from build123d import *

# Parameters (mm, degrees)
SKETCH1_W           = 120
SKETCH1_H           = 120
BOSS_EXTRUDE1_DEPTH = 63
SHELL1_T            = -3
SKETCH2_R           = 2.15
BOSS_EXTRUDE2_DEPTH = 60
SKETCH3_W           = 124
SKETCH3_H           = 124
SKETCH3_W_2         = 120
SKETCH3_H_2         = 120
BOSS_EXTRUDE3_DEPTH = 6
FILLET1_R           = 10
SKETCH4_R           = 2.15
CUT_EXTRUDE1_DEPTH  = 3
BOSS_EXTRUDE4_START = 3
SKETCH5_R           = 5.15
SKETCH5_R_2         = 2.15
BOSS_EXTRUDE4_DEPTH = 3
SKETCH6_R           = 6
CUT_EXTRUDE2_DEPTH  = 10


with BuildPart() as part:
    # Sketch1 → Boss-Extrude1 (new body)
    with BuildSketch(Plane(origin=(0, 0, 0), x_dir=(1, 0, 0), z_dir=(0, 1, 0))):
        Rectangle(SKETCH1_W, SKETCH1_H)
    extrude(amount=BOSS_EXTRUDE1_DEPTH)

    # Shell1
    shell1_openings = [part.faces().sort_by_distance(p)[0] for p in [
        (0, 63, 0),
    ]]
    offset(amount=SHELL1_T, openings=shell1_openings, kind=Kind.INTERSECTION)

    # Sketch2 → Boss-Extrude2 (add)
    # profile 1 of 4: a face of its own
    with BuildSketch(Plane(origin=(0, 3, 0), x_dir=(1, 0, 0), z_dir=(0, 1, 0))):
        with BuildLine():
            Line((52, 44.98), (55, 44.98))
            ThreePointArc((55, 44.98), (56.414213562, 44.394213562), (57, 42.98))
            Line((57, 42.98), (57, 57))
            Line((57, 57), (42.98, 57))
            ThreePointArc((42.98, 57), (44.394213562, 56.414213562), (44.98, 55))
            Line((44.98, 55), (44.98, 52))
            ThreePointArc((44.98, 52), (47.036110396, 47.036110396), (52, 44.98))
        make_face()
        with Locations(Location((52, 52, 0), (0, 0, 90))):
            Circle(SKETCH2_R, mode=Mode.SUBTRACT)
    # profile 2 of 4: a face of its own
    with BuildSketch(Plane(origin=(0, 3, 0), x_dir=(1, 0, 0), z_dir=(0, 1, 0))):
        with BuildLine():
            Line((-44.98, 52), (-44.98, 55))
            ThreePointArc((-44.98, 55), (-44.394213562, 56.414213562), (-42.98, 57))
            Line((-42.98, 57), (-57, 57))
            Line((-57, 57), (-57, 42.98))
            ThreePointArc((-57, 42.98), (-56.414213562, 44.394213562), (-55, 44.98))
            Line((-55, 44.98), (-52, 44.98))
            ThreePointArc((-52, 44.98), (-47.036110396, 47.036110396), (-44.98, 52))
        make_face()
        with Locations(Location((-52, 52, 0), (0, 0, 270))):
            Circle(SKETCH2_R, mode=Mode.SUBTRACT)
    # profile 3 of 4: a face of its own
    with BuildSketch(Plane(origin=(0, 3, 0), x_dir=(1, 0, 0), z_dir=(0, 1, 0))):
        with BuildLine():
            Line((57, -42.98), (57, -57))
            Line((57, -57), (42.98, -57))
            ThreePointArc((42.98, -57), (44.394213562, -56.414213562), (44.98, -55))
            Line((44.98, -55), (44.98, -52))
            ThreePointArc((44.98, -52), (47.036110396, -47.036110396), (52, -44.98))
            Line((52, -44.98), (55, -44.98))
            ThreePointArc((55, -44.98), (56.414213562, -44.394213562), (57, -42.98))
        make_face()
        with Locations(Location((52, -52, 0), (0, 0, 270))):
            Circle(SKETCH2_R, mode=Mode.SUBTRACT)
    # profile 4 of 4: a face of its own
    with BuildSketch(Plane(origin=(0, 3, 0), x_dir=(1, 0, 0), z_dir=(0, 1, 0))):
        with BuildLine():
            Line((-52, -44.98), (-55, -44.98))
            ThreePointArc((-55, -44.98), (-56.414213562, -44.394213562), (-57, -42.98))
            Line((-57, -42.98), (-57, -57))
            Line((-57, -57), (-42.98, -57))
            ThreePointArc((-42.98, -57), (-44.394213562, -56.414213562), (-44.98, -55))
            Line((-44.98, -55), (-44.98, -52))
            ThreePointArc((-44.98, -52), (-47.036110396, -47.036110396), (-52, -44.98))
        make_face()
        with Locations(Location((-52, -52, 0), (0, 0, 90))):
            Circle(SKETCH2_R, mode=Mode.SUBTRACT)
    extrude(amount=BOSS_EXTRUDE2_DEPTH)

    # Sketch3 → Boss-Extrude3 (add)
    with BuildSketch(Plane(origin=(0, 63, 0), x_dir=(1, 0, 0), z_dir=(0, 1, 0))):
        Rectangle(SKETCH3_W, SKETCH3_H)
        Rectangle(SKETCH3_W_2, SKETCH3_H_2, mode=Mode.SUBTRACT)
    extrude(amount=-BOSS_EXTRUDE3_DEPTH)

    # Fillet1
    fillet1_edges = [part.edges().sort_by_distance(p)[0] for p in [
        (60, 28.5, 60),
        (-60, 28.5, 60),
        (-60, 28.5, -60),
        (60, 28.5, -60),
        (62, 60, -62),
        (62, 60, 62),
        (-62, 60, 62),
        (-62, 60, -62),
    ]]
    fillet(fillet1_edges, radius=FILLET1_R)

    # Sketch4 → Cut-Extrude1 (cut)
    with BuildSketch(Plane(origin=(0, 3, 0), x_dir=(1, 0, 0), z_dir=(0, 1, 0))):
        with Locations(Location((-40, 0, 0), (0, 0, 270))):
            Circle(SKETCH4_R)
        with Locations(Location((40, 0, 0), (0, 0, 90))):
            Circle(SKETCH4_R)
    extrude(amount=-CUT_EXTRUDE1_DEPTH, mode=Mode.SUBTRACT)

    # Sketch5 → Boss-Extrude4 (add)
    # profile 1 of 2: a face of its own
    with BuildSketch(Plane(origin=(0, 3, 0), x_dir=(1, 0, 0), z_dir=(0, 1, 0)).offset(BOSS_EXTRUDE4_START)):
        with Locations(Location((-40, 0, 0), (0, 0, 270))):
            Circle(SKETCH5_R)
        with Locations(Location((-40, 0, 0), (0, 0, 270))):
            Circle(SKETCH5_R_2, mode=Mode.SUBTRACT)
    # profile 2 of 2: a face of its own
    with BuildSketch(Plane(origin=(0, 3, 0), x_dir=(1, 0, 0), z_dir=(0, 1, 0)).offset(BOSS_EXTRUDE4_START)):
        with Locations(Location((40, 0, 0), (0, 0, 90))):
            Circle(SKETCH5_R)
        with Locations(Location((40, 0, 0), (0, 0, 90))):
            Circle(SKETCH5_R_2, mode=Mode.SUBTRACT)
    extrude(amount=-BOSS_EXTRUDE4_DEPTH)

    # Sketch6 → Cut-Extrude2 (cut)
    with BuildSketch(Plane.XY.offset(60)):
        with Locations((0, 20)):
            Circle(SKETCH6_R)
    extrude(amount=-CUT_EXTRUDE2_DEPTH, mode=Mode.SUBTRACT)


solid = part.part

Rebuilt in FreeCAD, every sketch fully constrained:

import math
import FreeCAD as App
import Part
import Sketcher
from FreeCAD import Vector
Q = App.Units.Quantity


def edges_at(feature, points):
    """Names of the edges that pass closest to the given points."""
    edges = feature.Shape.Edges
    near = lambda p: min(range(len(edges)), key=lambda i: edges[i].distToShape(Part.Vertex(*p))[0])
    return sorted({f"Edge{near(p) + 1}" for p in points})


def faces_at(feature, points):
    """Names of the faces that lie closest to the given points."""
    faces = feature.Shape.Faces
    near = lambda p: min(range(len(faces)), key=lambda i: faces[i].distToShape(Part.Vertex(*p))[0])
    return sorted({f"Face{near(p) + 1}" for p in points})


def add_polygon(sketch, points):
    """Adds a closed chain of lines whose ends are joined by coincident constraints."""
    first, n = sketch.GeometryCount, len(points)
    for a, b in zip(points, points[1:] + points[:1]):
        sketch.addGeometry(Part.LineSegment(App.Vector(*a, 0), App.Vector(*b, 0)), False)
    for i in range(n):
        sketch.addConstraint(Sketcher.Constraint("Coincident", first + i, 2, first + (i + 1) % n, 1))

doc = App.newDocument("Part")
body = doc.addObject("PartDesign::Body", "Body")

sketch1 = doc.addObject("Sketcher::SketchObject", "Sketch")
body.addObject(sketch1)
sketch1.AttachmentSupport = (doc.XZ_Plane, [""])
sketch1.MapMode = "FlatFace"
add_polygon(sketch1, [(-60, -60), (-60, 60), (60, 60), (60, -60)])
sketch1.addConstraint(Sketcher.Constraint("Vertical", 0))
sketch1.addConstraint(Sketcher.Constraint("Horizontal", 1))
sketch1.addConstraint(Sketcher.Constraint("Vertical", 2))
sketch1.addConstraint(Sketcher.Constraint("Horizontal", 3))
sketch1.addConstraint(Sketcher.Constraint("Symmetric", 0, 2, 2, 2, -1, 1))
sketch1.addConstraint(Sketcher.Constraint("Equal", 3, 0))
sketch1.addConstraint(Sketcher.Constraint("DistanceX", 1, 1, 1, 2, Q("120 mm")))
pad1 = doc.addObject("PartDesign::Pad", "Pad")
body.addObject(pad1)
pad1.Profile = sketch1
pad1.Length = 63
pad1.Reversed = True
doc.recompute()

thickness = doc.addObject("PartDesign::Thickness", "Thickness")
body.addObject(thickness)
thickness.Base = (pad1, faces_at(pad1, [(0, 63, 0)]))
thickness.Value = 3
thickness.Reversed = True
thickness.Join = "Intersection"

sketch2 = doc.addObject("Sketcher::SketchObject", "Sketch001")
body.addObject(sketch2)
sketch2.AttachmentSupport = (doc.XZ_Plane, [""])
sketch2.MapMode = "FlatFace"
sketch2.AttachmentOffset = App.Placement(Vector(0, 0, -3), App.Rotation())
sketch2.addGeometry(Part.LineSegment(Vector(52, -45, 0), Vector(55, -45, 0)), False)
sketch2.addGeometry(Part.ArcOfCircle(Part.Circle(Vector(55, -43, 0), Vector(0, 0, 1), 2), math.radians(-90), math.radians(0)), False)
sketch2.addGeometry(Part.LineSegment(Vector(57, -43, 0), Vector(57, -57, 0)), False)
sketch2.addGeometry(Part.LineSegment(Vector(57, -57, 0), Vector(43, -57, 0)), False)
sketch2.addGeometry(Part.ArcOfCircle(Part.Circle(Vector(43, -55, 0), Vector(0, 0, 1), 2), math.radians(-90), math.radians(0)), False)
sketch2.addGeometry(Part.LineSegment(Vector(45, -55, 0), Vector(45, -52, 0)), False)
sketch2.addGeometry(Part.ArcOfCircle(Part.Circle(Vector(52, -52, 0), Vector(0, 0, 1), 7), math.radians(90), math.radians(180)), False)
sketch2.addGeometry(Part.Circle(Vector(52, -52, 0), Vector(0, 0, 1), 2.1), False)
sketch2.addGeometry(Part.LineSegment(Vector(-45, -52, 0), Vector(-45, -55, 0)), False)
sketch2.addGeometry(Part.ArcOfCircle(Part.Circle(Vector(-43, -55, 0), Vector(0, 0, 1), 2), math.radians(-180), math.radians(-90)), False)
sketch2.addGeometry(Part.LineSegment(Vector(-43, -57, 0), Vector(-57, -57, 0)), False)
sketch2.addGeometry(Part.LineSegment(Vector(-57, -57, 0), Vector(-57, -43, 0)), False)
sketch2.addGeometry(Part.ArcOfCircle(Part.Circle(Vector(-55, -43, 0), Vector(0, 0, 1), 2), math.radians(-180), math.radians(-90)), False)
sketch2.addGeometry(Part.LineSegment(Vector(-55, -45, 0), Vector(-52, -45, 0)), False)
sketch2.addGeometry(Part.ArcOfCircle(Part.Circle(Vector(-52, -52, 0), Vector(0, 0, 1), 7), math.radians(0), math.radians(90)), False)
sketch2.addGeometry(Part.Circle(Vector(-52, -52, 0), Vector(0, 0, 1), 2.1), False)
sketch2.addGeometry(Part.LineSegment(Vector(57, 57, 0), Vector(57, 43, 0)), False)
sketch2.addGeometry(Part.ArcOfCircle(Part.Circle(Vector(55, 43, 0), Vector(0, 0, 1), 2), math.radians(0), math.radians(90)), False)
sketch2.addGeometry(Part.LineSegment(Vector(55, 45, 0), Vector(52, 45, 0)), False)
sketch2.addGeometry(Part.ArcOfCircle(Part.Circle(Vector(52, 52, 0), Vector(0, 0, 1), 7), math.radians(180), math.radians(270)), False)
sketch2.addGeometry(Part.LineSegment(Vector(45, 52, 0), Vector(45, 55, 0)), False)
sketch2.addGeometry(Part.ArcOfCircle(Part.Circle(Vector(43, 55, 0), Vector(0, 0, 1), 2), math.radians(0), math.radians(90)), False)
sketch2.addGeometry(Part.LineSegment(Vector(43, 57, 0), Vector(57, 57, 0)), False)
sketch2.addGeometry(Part.Circle(Vector(52, 52, 0), Vector(0, 0, 1), 2.1), False)
sketch2.addGeometry(Part.LineSegment(Vector(-52, 45, 0), Vector(-55, 45, 0)), False)
sketch2.addGeometry(Part.ArcOfCircle(Part.Circle(Vector(-55, 43, 0), Vector(0, 0, 1), 2), math.radians(90), math.radians(180)), False)
sketch2.addGeometry(Part.LineSegment(Vector(-57, 43, 0), Vector(-57, 57, 0)), False)
sketch2.addGeometry(Part.LineSegment(Vector(-57, 57, 0), Vector(-43, 57, 0)), False)
sketch2.addGeometry(Part.ArcOfCircle(Part.Circle(Vector(-43, 55, 0), Vector(0, 0, 1), 2), math.radians(90), math.radians(180)), False)
sketch2.addGeometry(Part.LineSegment(Vector(-45, 55, 0), Vector(-45, 52, 0)), False)
sketch2.addGeometry(Part.ArcOfCircle(Part.Circle(Vector(-52, 52, 0), Vector(0, 0, 1), 7), math.radians(-90), math.radians(0)), False)
sketch2.addGeometry(Part.Circle(Vector(-52, 52, 0), Vector(0, 0, 1), 2.1), False)
sketch2.addConstraint(Sketcher.Constraint("Tangent", 0, 2, 1, 1))
sketch2.addConstraint(Sketcher.Constraint("Tangent", 1, 2, 2, 1))
sketch2.addConstraint(Sketcher.Constraint("Coincident", 2, 2, 3, 1))
sketch2.addConstraint(Sketcher.Constraint("Tangent", 3, 2, 4, 1))
sketch2.addConstraint(Sketcher.Constraint("Tangent", 4, 2, 5, 1))
sketch2.addConstraint(Sketcher.Constraint("Tangent", 5, 2, 6, 2))
sketch2.addConstraint(Sketcher.Constraint("Tangent", 6, 1, 0, 1))
sketch2.addConstraint(Sketcher.Constraint("Tangent", 8, 2, 9, 1))
sketch2.addConstraint(Sketcher.Constraint("Tangent", 9, 2, 10, 1))
sketch2.addConstraint(Sketcher.Constraint("Coincident", 10, 2, 11, 1))
sketch2.addConstraint(Sketcher.Constraint("Tangent", 11, 2, 12, 1))
sketch2.addConstraint(Sketcher.Constraint("Tangent", 12, 2, 13, 1))
sketch2.addConstraint(Sketcher.Constraint("Tangent", 13, 2, 14, 2))
sketch2.addConstraint(Sketcher.Constraint("Tangent", 14, 1, 8, 1))
sketch2.addConstraint(Sketcher.Constraint("Tangent", 16, 2, 17, 1))
sketch2.addConstraint(Sketcher.Constraint("Tangent", 17, 2, 18, 1))
sketch2.addConstraint(Sketcher.Constraint("Tangent", 18, 2, 19, 2))
sketch2.addConstraint(Sketcher.Constraint("Tangent", 19, 1, 20, 1))
sketch2.addConstraint(Sketcher.Constraint("Tangent", 20, 2, 21, 1))
sketch2.addConstraint(Sketcher.Constraint("Tangent", 21, 2, 22, 1))
sketch2.addConstraint(Sketcher.Constraint("Coincident", 22, 2, 16, 1))
sketch2.addConstraint(Sketcher.Constraint("Tangent", 24, 2, 25, 1))
sketch2.addConstraint(Sketcher.Constraint("Tangent", 25, 2, 26, 1))
sketch2.addConstraint(Sketcher.Constraint("Coincident", 26, 2, 27, 1))
sketch2.addConstraint(Sketcher.Constraint("Tangent", 27, 2, 28, 1))
sketch2.addConstraint(Sketcher.Constraint("Tangent", 28, 2, 29, 1))
sketch2.addConstraint(Sketcher.Constraint("Tangent", 29, 2, 30, 2))
sketch2.addConstraint(Sketcher.Constraint("Tangent", 30, 1, 24, 1))
sketch2.addConstraint(Sketcher.Constraint("Horizontal", 0))
sketch2.addConstraint(Sketcher.Constraint("Vertical", 2))
sketch2.addConstraint(Sketcher.Constraint("Horizontal", 3))
sketch2.addConstraint(Sketcher.Constraint("Vertical", 5))
sketch2.addConstraint(Sketcher.Constraint("Vertical", 8))
sketch2.addConstraint(Sketcher.Constraint("Horizontal", 10))
sketch2.addConstraint(Sketcher.Constraint("Vertical", 11))
sketch2.addConstraint(Sketcher.Constraint("Horizontal", 13))
sketch2.addConstraint(Sketcher.Constraint("Vertical", 16))
sketch2.addConstraint(Sketcher.Constraint("Horizontal", 18))
sketch2.addConstraint(Sketcher.Constraint("Vertical", 20))
sketch2.addConstraint(Sketcher.Constraint("Horizontal", 22))
sketch2.addConstraint(Sketcher.Constraint("Horizontal", 24))
sketch2.addConstraint(Sketcher.Constraint("Vertical", 26))
sketch2.addConstraint(Sketcher.Constraint("Horizontal", 27))
sketch2.addConstraint(Sketcher.Constraint("Vertical", 29))
sketch2.addConstraint(Sketcher.Constraint("Coincident", 7, 3, 6, 3))
sketch2.addConstraint(Sketcher.Constraint("Coincident", 15, 3, 14, 3))
sketch2.addConstraint(Sketcher.Constraint("Coincident", 23, 3, 19, 3))
sketch2.addConstraint(Sketcher.Constraint("Coincident", 31, 3, 30, 3))
sketch2.addConstraint(Sketcher.Constraint("Equal", 1, 4))
sketch2.addConstraint(Sketcher.Constraint("Equal", 4, 9))
sketch2.addConstraint(Sketcher.Constraint("Equal", 9, 12))
sketch2.addConstraint(Sketcher.Constraint("Equal", 6, 14))
sketch2.addConstraint(Sketcher.Constraint("Equal", 7, 15))
sketch2.addConstraint(Sketcher.Constraint("Equal", 12, 17))
sketch2.addConstraint(Sketcher.Constraint("Equal", 14, 19))
sketch2.addConstraint(Sketcher.Constraint("Equal", 17, 21))
sketch2.addConstraint(Sketcher.Constraint("Equal", 15, 23))
sketch2.addConstraint(Sketcher.Constraint("Equal", 21, 25))
sketch2.addConstraint(Sketcher.Constraint("Equal", 25, 28))
sketch2.addConstraint(Sketcher.Constraint("Equal", 19, 30))
sketch2.addConstraint(Sketcher.Constraint("Equal", 23, 31))
sketch2.addConstraint(Sketcher.Constraint("Symmetric", 12, 3, 17, 3, -1, 1))
sketch2.addConstraint(Sketcher.Constraint("Symmetric", 9, 3, 21, 3, -1, 1))
sketch2.addConstraint(Sketcher.Constraint("Symmetric", 1, 3, 25, 3, -1, 1))
sketch2.addConstraint(Sketcher.Constraint("Symmetric", 4, 3, 28, 3, -1, 1))
sketch2.addConstraint(Sketcher.Constraint("Symmetric", 4, 3, 9, 3, -2))
sketch2.addConstraint(Sketcher.Constraint("Symmetric", 1, 3, 12, 3, -2))
sketch2.addConstraint(Sketcher.Constraint("Equal", 27, 2))
sketch2.addConstraint(Sketcher.Constraint("Radius", 1, Q("2 mm")))
sketch2.addConstraint(Sketcher.Constraint("Diameter", 7, Q("4.3 mm")))
sketch2.addConstraint(Sketcher.Constraint("DistanceX", 0, 1, 0, 2, Q("3 mm")))
sketch2.addConstraint(Sketcher.Constraint("Radius", 6, Q("7.02 mm")))
sketch2.addConstraint(Sketcher.Constraint("DistanceX", -1, 1, 1, 3, Q("55 mm")))
sketch2.addConstraint(Sketcher.Constraint("DistanceY", 4, 3, -1, 1, Q("55 mm")))
pad2 = doc.addObject("PartDesign::Pad", "Pad001")
body.addObject(pad2)
pad2.Profile = sketch2
pad2.Length = 60
pad2.Reversed = True

sketch3 = doc.addObject("Sketcher::SketchObject", "Sketch002")
body.addObject(sketch3)
sketch3.AttachmentSupport = (doc.XZ_Plane, [""])
sketch3.MapMode = "FlatFace"
sketch3.AttachmentOffset = App.Placement(Vector(0, 0, -63), App.Rotation())
add_polygon(sketch3, [(-62, -62), (-62, 62), (62, 62), (62, -62)])
add_polygon(sketch3, [(60, 60), (-60, 60), (-60, -60), (60, -60)])
sketch3.addConstraint(Sketcher.Constraint("Vertical", 0))
sketch3.addConstraint(Sketcher.Constraint("Horizontal", 1))
sketch3.addConstraint(Sketcher.Constraint("Vertical", 2))
sketch3.addConstraint(Sketcher.Constraint("Horizontal", 3))
sketch3.addConstraint(Sketcher.Constraint("Horizontal", 4))
sketch3.addConstraint(Sketcher.Constraint("Vertical", 5))
sketch3.addConstraint(Sketcher.Constraint("Horizontal", 6))
sketch3.addConstraint(Sketcher.Constraint("Vertical", 7))
sketch3.addConstraint(Sketcher.Constraint("Symmetric", 0, 2, 2, 2, -1, 1))
sketch3.addConstraint(Sketcher.Constraint("Symmetric", 4, 2, 6, 2, -1, 1))
sketch3.addConstraint(Sketcher.Constraint("Equal", 3, 0))
sketch3.addConstraint(Sketcher.Constraint("Equal", 6, 5))
sketch3.addConstraint(Sketcher.Constraint("DistanceX", 1, 1, 1, 2, Q("124 mm")))
sketch3.addConstraint(Sketcher.Constraint("DistanceX", 4, 2, 4, 1, Q("120 mm")))
pad3 = doc.addObject("PartDesign::Pad", "Pad002")
body.addObject(pad3)
pad3.Profile = sketch3
pad3.Length = 6
doc.recompute()

fillet = doc.addObject("PartDesign::Fillet", "Fillet")
body.addObject(fillet)
fillet.Base = (pad3, edges_at(pad3, [
    (60, 28.5, 60),
    (-60, 28.5, 60),
    (-60, 28.5, -60),
    (60, 28.5, -60),
    (62, 60, -62),
    (62, 60, 62),
    (-62, 60, 62),
    (-62, 60, -62),
]))
fillet.Radius = 10

sketch4 = doc.addObject("Sketcher::SketchObject", "Sketch003")
body.addObject(sketch4)
sketch4.AttachmentSupport = (doc.XZ_Plane, [""])
sketch4.MapMode = "FlatFace"
sketch4.AttachmentOffset = App.Placement(Vector(0, 0, -3), App.Rotation())
sketch4.addGeometry(Part.Circle(Vector(-40, 0, 0), Vector(0, 0, 1), 2.1), False)
sketch4.addGeometry(Part.Circle(Vector(40, 0, 0), Vector(0, 0, 1), 2.1), False)
sketch4.addConstraint(Sketcher.Constraint("Equal", 0, 1))
sketch4.addConstraint(Sketcher.Constraint("Symmetric", 0, 3, 1, 3, -1, 1))
sketch4.addConstraint(Sketcher.Constraint("PointOnObject", 0, 3, -1))
sketch4.addConstraint(Sketcher.Constraint("Diameter", 0, Q("4.3 mm")))
sketch4.addConstraint(Sketcher.Constraint("DistanceX", 0, 3, -1, 1, Q("40 mm")))
pocket1 = doc.addObject("PartDesign::Pocket", "Pocket")
body.addObject(pocket1)
pocket1.Profile = sketch4
pocket1.Length = 3
pocket1.Reversed = True

sketch5 = doc.addObject("Sketcher::SketchObject", "Sketch004")
body.addObject(sketch5)
sketch5.AttachmentSupport = (doc.XZ_Plane, [""])
sketch5.MapMode = "FlatFace"
sketch5.AttachmentOffset = App.Placement(Vector(0, 0, -6), App.Rotation())
sketch5.addGeometry(Part.Circle(Vector(-40, 0, 0), Vector(0, 0, 1), 5.2), False)
sketch5.addGeometry(Part.Circle(Vector(-40, 0, 0), Vector(0, 0, 1), 2.1), False)
sketch5.addGeometry(Part.Circle(Vector(40, 0, 0), Vector(0, 0, 1), 5.2), False)
sketch5.addGeometry(Part.Circle(Vector(40, 0, 0), Vector(0, 0, 1), 2.1), False)
sketch5.addConstraint(Sketcher.Constraint("Coincident", 1, 3, 0, 3))
sketch5.addConstraint(Sketcher.Constraint("Coincident", 3, 3, 2, 3))
sketch5.addConstraint(Sketcher.Constraint("Equal", 0, 2))
sketch5.addConstraint(Sketcher.Constraint("Equal", 1, 3))
sketch5.addConstraint(Sketcher.Constraint("Symmetric", 0, 3, 2, 3, -1, 1))
sketch5.addConstraint(Sketcher.Constraint("PointOnObject", 0, 3, -1))
sketch5.addConstraint(Sketcher.Constraint("Diameter", 0, Q("10.3 mm")))
sketch5.addConstraint(Sketcher.Constraint("Diameter", 1, Q("4.3 mm")))
sketch5.addConstraint(Sketcher.Constraint("DistanceX", 0, 3, -1, 1, Q("40 mm")))
pad4 = doc.addObject("PartDesign::Pad", "Pad003")
body.addObject(pad4)
pad4.Profile = sketch5
pad4.Length = 3

sketch6 = doc.addObject("Sketcher::SketchObject", "Sketch005")
body.addObject(sketch6)
sketch6.AttachmentSupport = (doc.XY_Plane, [""])
sketch6.MapMode = "FlatFace"
sketch6.AttachmentOffset = App.Placement(Vector(0, 0, 60), App.Rotation())
sketch6.addGeometry(Part.Circle(Vector(0, 20, 0), Vector(0, 0, 1), 6), False)
sketch6.addConstraint(Sketcher.Constraint("PointOnObject", 0, 3, -2))
sketch6.addConstraint(Sketcher.Constraint("Diameter", 0, Q("12 mm")))
sketch6.addConstraint(Sketcher.Constraint("DistanceY", -1, 1, 0, 3, Q("20 mm")))
pocket2 = doc.addObject("PartDesign::Pocket", "Pocket001")
body.addObject(pocket2)
pocket2.Profile = sketch6
pocket2.Length = 10

doc.recompute()
